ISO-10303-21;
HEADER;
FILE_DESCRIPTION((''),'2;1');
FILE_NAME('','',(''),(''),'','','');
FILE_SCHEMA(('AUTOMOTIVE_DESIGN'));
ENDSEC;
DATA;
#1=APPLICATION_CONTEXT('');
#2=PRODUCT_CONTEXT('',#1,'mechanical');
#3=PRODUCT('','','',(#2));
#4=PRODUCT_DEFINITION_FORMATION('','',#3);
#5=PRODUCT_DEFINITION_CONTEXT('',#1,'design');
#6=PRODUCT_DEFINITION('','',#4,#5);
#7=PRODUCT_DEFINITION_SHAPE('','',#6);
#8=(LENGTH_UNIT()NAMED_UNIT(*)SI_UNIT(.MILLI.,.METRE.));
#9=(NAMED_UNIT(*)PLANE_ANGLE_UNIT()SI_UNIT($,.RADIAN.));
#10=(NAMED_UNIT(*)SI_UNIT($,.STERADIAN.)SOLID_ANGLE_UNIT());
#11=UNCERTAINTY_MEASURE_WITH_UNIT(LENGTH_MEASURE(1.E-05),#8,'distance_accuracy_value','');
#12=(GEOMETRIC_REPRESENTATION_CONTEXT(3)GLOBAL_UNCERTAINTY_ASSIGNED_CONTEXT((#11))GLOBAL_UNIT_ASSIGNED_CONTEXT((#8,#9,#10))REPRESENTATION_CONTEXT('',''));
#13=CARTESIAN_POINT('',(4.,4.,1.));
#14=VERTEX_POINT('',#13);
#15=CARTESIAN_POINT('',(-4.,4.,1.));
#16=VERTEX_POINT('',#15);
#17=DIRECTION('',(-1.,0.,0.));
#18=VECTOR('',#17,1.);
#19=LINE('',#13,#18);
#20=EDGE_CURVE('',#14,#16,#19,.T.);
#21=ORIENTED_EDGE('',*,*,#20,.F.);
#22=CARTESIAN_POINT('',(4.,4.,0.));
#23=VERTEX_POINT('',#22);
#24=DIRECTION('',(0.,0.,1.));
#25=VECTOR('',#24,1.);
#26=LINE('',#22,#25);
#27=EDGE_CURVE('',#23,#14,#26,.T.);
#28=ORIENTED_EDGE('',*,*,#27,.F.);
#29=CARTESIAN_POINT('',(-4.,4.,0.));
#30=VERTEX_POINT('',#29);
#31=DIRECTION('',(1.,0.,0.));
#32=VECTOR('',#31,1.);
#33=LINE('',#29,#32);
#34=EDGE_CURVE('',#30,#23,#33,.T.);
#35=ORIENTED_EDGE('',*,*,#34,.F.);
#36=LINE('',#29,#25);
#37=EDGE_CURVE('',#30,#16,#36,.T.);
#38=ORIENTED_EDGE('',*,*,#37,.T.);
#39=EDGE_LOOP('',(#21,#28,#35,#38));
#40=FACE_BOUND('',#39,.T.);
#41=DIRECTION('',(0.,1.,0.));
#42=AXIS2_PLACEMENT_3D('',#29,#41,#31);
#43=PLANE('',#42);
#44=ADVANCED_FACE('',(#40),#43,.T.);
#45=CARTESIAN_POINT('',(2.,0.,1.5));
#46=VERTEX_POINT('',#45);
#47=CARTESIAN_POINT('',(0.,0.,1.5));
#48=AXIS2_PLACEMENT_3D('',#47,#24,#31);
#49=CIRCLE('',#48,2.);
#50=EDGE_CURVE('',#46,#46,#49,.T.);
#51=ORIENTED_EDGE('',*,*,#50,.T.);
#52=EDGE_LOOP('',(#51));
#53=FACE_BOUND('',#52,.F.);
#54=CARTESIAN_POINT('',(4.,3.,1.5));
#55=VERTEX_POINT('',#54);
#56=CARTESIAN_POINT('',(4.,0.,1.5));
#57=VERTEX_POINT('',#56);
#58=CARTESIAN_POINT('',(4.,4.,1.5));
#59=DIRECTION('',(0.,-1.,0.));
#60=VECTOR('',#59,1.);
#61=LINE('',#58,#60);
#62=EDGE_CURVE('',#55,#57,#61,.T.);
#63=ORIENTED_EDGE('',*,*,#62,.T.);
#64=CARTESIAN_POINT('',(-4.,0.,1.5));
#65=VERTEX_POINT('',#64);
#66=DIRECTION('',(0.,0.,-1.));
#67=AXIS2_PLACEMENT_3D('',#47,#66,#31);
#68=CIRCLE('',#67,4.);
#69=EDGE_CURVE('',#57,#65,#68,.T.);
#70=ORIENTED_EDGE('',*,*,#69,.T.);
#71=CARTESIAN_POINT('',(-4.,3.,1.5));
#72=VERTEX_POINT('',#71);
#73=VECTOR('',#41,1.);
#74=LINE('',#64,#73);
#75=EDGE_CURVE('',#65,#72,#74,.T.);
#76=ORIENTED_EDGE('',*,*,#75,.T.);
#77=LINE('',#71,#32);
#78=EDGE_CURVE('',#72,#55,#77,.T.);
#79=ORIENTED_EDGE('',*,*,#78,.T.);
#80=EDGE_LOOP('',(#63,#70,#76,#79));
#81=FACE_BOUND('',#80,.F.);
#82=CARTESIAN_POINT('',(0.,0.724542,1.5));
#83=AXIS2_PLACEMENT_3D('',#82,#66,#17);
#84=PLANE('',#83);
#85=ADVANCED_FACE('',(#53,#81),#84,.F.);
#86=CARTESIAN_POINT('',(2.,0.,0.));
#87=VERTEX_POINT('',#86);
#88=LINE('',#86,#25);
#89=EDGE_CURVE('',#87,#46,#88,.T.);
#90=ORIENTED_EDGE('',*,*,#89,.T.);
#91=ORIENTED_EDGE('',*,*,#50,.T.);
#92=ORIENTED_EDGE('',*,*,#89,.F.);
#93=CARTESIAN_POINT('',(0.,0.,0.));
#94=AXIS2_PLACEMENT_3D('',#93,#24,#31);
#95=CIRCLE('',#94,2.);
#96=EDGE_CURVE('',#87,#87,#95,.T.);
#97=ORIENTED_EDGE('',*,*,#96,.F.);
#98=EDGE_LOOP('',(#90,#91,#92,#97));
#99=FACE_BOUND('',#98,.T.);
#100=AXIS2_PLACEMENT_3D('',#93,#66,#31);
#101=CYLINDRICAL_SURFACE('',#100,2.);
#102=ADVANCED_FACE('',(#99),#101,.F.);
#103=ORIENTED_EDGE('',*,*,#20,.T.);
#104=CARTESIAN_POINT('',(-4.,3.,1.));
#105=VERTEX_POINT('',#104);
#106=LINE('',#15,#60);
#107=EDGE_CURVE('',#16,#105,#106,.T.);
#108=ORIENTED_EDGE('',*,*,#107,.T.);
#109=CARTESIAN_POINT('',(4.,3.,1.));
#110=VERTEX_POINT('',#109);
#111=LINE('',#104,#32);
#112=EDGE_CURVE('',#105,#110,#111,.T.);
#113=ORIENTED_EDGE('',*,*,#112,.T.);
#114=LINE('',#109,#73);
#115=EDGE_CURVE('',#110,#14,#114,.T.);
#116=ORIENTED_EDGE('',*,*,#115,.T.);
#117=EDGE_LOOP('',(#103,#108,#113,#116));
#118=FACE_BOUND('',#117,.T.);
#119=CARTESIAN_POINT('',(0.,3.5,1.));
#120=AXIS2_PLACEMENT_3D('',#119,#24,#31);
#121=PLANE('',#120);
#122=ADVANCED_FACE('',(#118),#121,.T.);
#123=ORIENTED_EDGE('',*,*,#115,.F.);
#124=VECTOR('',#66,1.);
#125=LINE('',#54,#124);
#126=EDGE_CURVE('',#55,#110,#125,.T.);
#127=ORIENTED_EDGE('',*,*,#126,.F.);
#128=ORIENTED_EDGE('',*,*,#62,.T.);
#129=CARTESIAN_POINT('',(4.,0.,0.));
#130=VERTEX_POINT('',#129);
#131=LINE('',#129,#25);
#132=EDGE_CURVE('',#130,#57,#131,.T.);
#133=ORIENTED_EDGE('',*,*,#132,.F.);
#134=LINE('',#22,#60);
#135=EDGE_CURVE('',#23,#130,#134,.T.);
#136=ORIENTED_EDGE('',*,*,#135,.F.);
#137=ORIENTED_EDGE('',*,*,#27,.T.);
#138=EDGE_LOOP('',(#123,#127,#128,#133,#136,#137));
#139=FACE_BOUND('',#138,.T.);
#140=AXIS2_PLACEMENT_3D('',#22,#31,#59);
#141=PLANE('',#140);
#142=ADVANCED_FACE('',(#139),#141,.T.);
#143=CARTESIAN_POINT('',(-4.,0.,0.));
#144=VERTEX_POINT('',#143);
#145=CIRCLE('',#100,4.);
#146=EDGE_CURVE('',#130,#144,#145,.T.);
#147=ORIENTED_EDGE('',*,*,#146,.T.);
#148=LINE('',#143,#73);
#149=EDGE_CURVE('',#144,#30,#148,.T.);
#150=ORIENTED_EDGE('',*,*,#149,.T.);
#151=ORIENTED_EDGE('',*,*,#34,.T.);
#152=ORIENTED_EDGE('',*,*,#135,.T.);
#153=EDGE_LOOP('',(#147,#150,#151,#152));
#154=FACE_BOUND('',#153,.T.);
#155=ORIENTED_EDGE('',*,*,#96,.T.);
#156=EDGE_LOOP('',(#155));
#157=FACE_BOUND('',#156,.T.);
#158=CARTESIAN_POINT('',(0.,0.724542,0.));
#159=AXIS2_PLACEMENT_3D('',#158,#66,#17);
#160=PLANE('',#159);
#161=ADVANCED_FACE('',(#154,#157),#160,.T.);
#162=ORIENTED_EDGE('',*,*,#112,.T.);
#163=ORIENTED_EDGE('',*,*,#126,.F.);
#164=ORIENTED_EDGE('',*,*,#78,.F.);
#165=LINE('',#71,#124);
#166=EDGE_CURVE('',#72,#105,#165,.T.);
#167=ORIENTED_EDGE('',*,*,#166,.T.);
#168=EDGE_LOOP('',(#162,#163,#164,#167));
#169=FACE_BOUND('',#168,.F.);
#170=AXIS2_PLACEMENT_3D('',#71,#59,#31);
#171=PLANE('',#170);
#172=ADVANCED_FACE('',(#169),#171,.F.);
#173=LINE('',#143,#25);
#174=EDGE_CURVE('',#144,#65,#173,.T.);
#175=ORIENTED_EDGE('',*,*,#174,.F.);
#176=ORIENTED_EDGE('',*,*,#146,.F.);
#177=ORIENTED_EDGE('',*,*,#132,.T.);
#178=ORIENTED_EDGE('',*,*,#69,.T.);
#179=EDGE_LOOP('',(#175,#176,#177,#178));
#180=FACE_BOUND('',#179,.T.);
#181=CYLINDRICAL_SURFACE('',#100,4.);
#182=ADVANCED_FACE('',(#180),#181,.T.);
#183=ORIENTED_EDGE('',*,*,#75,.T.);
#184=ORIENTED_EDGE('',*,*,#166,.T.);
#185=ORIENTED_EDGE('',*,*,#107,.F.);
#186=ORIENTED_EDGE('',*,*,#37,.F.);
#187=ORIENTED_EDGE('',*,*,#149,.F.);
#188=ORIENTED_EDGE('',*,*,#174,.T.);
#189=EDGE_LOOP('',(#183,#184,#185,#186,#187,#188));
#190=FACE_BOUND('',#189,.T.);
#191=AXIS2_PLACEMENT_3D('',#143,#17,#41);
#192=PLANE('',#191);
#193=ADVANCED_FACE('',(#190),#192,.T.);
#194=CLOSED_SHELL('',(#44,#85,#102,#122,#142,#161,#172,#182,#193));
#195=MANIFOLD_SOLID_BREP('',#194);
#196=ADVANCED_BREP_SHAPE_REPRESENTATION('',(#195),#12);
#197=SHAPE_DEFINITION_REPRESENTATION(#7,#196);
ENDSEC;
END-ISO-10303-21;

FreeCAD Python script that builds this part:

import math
import FreeCAD as App
import Part
import Sketcher
from FreeCAD import Vector
Q = App.Units.Quantity

doc = App.newDocument("Part")
body = doc.addObject("PartDesign::Body", "Body")

sketch1 = body.newObject("Sketcher::SketchObject", "Sketch")
sketch1.AttachmentSupport = (doc.getObject("XY_Plane"), [""])
sketch1.MapMode = "FlatFace"
sketch1.addGeometry(Part.LineSegment(Vector(-4, 4, 0), Vector(-4, 0, 0)), False)
sketch1.addGeometry(Part.ArcOfCircle(Part.Circle(Vector(0, 0, 0), Vector(0, 0, 1), 4), math.radians(180), math.radians(360)), False)
sketch1.addGeometry(Part.LineSegment(Vector(4, 0, 0), Vector(4, 4, 0)), False)
sketch1.addGeometry(Part.LineSegment(Vector(4, 4, 0), Vector(-4, 4, 0)), False)
sketch1.addGeometry(Part.Circle(Vector(0, 0, 0), Vector(0, 0, 1), 2), False)
sketch1.addConstraint(Sketcher.Constraint("Tangent", 0, 2, 1, 1))
sketch1.addConstraint(Sketcher.Constraint("Tangent", 1, 2, 2, 1))
sketch1.addConstraint(Sketcher.Constraint("Coincident", 2, 2, 3, 1))
sketch1.addConstraint(Sketcher.Constraint("Coincident", 3, 2, 0, 1))
sketch1.addConstraint(Sketcher.Constraint("Vertical", 0))
sketch1.addConstraint(Sketcher.Constraint("Vertical", 2))
sketch1.addConstraint(Sketcher.Constraint("Horizontal", 3))
sketch1.addConstraint(Sketcher.Constraint("Coincident", 1, 3, -1, 1))
sketch1.addConstraint(Sketcher.Constraint("Coincident", 4, 3, -1, 1))
sketch1.addConstraint(Sketcher.Constraint("Diameter", 4, Q("4 mm")))
sketch1.addConstraint(Sketcher.Constraint("Radius", 1, Q("4 mm")))
sketch1.addConstraint(Sketcher.Constraint("DistanceY", 0, 2, 0, 1, Q("4 mm")))
pad1 = body.newObject("PartDesign::Pad", "Pad")
pad1.Profile = sketch1
pad1.Length = 1.5

sketch2 = body.newObject("Sketcher::SketchObject", "Sketch001")
sketch2.AttachmentSupport = (doc.getObject("XY_Plane"), [""])
sketch2.MapMode = "FlatFace"
sketch2.AttachmentOffset = App.Placement(Vector(0, 0, 1.5), App.Rotation())
sketch2.addGeometry(Part.LineSegment(Vector(-4, 4, 0), Vector(-4, 3, 0)), False)
sketch2.addGeometry(Part.LineSegment(Vector(-4, 3, 0), Vector(4, 3, 0)), False)
sketch2.addGeometry(Part.LineSegment(Vector(4, 3, 0), Vector(4, 4, 0)), False)
sketch2.addGeometry(Part.LineSegment(Vector(4, 4, 0), Vector(-4, 4, 0)), False)
sketch2.addConstraint(Sketcher.Constraint("Coincident", 0, 2, 1, 1))
sketch2.addConstraint(Sketcher.Constraint("Coincident", 1, 2, 2, 1))
sketch2.addConstraint(Sketcher.Constraint("Coincident", 2, 2, 3, 1))
sketch2.addConstraint(Sketcher.Constraint("Coincident", 3, 2, 0, 1))
sketch2.addConstraint(Sketcher.Constraint("Vertical", 0))
sketch2.addConstraint(Sketcher.Constraint("Horizontal", 1))
sketch2.addConstraint(Sketcher.Constraint("Vertical", 2))
sketch2.addConstraint(Sketcher.Constraint("Horizontal", 3))
sketch2.addConstraint(Sketcher.Constraint("DistanceX", 0, 2, -1, 1, Q("4 mm")))
sketch2.addConstraint(Sketcher.Constraint("DistanceX", -1, 1, 1, 2, Q("4 mm")))
sketch2.addConstraint(Sketcher.Constraint("DistanceY", -1, 1, 2, 2, Q("4 mm")))
sketch2.addConstraint(Sketcher.Constraint("DistanceY", 0, 2, 0, 1, Q("1 mm")))
pocket1 = body.newObject("PartDesign::Pocket", "Pocket")
pocket1.Profile = sketch2
pocket1.Length = 0.5

doc.recompute()
